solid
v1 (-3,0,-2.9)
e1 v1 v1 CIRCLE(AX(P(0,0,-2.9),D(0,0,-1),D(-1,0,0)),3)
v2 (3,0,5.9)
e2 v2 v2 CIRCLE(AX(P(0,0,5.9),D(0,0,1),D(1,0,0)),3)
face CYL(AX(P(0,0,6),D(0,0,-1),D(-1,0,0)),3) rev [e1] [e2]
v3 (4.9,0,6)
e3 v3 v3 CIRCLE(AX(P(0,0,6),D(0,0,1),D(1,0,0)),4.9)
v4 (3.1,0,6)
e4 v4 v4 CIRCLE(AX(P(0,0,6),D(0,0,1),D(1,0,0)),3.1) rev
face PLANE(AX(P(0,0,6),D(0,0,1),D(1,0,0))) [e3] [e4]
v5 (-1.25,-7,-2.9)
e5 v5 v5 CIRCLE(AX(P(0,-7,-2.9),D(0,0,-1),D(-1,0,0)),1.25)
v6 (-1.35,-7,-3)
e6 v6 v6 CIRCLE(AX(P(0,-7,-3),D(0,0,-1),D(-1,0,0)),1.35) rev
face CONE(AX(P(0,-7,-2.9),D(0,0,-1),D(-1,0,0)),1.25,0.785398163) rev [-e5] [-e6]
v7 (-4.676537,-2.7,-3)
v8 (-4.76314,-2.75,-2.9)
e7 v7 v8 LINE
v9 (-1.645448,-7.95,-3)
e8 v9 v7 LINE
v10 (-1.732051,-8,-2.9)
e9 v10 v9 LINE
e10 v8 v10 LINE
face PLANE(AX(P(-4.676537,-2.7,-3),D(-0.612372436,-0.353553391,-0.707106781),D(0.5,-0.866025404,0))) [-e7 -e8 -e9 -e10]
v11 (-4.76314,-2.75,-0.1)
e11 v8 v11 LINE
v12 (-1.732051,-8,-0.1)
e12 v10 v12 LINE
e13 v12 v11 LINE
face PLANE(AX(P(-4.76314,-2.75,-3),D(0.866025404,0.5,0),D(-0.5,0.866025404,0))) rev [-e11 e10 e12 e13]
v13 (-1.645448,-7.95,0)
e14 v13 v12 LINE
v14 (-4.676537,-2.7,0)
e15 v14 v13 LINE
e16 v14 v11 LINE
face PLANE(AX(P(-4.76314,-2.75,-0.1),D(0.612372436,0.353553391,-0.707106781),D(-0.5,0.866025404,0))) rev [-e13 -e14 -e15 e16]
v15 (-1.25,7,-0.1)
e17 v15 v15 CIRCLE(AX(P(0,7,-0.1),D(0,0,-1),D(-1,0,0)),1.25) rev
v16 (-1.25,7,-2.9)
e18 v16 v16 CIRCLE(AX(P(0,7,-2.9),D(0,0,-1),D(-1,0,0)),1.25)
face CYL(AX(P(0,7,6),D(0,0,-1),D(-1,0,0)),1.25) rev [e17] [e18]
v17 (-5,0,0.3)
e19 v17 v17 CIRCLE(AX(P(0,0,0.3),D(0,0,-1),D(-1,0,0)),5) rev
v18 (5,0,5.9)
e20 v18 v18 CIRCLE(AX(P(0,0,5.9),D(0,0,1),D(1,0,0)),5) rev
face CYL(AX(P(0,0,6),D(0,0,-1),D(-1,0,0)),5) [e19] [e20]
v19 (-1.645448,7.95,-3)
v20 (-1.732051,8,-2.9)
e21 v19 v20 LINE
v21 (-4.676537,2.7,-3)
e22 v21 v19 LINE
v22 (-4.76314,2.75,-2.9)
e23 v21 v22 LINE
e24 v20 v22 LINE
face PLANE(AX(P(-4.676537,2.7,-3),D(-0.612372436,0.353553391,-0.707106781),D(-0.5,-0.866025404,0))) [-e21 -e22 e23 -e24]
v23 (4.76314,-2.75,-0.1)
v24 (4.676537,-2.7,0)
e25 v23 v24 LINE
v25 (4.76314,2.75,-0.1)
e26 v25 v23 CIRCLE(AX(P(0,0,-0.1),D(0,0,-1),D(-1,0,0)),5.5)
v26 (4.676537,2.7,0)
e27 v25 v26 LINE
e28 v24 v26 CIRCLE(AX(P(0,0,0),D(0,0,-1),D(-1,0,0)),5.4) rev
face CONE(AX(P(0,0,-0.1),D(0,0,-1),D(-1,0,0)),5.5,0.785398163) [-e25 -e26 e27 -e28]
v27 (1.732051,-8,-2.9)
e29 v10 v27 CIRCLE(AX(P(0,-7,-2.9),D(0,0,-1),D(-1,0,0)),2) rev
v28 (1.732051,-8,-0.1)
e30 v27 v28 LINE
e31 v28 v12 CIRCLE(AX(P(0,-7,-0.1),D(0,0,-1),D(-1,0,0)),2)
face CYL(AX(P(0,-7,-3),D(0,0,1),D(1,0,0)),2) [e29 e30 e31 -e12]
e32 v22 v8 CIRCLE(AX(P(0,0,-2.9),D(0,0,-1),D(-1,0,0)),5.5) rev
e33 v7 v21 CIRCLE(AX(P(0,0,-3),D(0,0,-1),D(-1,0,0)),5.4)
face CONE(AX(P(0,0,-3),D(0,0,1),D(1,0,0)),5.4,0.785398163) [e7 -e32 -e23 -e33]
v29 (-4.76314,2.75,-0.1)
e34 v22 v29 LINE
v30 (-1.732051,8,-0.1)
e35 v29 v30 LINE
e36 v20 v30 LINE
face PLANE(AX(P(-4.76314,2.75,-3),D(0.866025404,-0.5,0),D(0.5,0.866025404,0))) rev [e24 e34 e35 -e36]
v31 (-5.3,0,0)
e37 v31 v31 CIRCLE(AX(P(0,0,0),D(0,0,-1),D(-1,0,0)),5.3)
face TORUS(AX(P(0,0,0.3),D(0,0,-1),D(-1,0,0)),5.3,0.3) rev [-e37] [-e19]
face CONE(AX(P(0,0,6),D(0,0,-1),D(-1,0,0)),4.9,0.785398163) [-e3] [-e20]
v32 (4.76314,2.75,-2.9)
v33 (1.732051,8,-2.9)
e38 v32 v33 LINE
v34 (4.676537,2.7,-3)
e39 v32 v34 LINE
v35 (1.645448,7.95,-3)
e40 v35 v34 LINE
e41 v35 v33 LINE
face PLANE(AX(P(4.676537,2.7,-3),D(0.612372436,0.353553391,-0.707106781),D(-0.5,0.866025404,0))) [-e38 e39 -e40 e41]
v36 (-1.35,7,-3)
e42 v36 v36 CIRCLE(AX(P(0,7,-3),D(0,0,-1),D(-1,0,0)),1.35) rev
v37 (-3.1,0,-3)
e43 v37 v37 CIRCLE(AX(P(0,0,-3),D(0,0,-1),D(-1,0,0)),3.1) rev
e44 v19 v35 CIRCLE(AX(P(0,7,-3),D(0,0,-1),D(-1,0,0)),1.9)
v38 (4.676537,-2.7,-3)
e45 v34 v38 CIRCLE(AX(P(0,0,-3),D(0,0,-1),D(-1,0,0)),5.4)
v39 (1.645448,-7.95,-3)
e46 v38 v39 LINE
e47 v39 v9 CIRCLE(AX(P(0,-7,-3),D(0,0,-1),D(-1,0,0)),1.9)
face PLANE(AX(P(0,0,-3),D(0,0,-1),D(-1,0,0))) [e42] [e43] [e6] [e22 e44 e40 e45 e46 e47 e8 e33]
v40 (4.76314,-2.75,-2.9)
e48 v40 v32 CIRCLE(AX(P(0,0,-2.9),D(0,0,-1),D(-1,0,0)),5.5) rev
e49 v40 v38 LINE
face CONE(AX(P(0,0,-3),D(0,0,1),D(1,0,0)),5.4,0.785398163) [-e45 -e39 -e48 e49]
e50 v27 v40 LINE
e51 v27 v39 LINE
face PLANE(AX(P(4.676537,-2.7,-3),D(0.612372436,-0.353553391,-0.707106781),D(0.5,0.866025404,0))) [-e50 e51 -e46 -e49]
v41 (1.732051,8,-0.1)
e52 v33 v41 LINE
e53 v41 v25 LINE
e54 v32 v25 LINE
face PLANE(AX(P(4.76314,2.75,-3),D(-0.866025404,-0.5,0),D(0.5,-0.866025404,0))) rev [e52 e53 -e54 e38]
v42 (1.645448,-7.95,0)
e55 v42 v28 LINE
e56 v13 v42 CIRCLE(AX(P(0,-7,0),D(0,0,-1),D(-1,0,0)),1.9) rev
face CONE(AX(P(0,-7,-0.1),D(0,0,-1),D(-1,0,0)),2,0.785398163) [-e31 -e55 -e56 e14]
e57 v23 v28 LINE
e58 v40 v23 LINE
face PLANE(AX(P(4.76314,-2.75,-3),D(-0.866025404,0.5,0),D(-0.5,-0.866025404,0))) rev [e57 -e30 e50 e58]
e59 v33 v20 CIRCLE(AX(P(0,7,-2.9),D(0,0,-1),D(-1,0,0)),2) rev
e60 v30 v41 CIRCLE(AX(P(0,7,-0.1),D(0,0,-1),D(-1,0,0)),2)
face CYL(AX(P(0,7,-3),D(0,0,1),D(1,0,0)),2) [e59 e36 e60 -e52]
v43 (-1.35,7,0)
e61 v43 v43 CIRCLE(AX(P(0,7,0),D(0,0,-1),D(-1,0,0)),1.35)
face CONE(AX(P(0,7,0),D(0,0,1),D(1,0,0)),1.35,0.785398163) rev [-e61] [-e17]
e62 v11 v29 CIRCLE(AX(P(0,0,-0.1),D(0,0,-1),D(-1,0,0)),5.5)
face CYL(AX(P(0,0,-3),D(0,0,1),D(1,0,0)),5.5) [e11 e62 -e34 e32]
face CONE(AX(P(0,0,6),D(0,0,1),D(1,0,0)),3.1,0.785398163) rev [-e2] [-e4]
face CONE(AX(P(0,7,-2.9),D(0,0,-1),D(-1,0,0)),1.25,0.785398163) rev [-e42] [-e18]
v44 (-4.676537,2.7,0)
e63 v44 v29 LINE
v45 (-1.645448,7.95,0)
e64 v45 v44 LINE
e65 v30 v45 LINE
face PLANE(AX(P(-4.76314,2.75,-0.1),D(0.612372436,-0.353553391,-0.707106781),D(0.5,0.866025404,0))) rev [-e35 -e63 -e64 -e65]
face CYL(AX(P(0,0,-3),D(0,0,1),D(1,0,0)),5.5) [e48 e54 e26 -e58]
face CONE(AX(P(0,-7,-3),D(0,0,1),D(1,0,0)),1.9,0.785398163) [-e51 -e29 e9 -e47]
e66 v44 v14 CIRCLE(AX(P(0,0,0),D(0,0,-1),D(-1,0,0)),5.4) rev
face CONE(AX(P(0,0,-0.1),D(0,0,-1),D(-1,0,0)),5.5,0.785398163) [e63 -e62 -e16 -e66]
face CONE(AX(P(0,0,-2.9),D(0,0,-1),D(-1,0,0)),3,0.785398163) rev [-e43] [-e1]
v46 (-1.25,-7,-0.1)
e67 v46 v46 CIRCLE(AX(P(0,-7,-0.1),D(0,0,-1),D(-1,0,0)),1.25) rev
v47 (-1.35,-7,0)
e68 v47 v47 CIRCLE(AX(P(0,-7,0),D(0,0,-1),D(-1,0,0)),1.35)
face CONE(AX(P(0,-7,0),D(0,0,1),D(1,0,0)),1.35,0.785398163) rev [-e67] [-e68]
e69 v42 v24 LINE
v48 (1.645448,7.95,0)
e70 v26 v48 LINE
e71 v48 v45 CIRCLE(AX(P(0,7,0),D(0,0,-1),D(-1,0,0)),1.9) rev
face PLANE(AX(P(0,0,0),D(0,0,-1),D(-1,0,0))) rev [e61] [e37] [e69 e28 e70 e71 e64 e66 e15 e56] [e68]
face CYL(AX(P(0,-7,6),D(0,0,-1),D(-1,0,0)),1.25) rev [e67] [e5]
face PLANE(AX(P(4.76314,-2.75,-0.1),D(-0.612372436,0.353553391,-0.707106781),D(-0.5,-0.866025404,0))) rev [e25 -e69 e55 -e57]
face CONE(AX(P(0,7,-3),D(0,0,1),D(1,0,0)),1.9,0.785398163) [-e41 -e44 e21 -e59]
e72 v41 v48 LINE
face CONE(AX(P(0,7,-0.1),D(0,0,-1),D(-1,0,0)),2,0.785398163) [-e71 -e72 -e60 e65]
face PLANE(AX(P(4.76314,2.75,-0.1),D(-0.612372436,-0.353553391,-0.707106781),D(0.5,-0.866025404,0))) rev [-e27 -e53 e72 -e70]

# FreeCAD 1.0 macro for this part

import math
import FreeCAD as App
import Part
import Sketcher
Q = App.Units.Quantity


def edges_at(feature, points):
    """Names of the edges that pass closest to the given points."""
    edges = feature.Shape.Edges
    near = lambda p: min(range(len(edges)), key=lambda i: edges[i].distToShape(Part.Vertex(*p))[0])
    return sorted({f"Edge{near(p) + 1}" for p in points})

doc = App.newDocument("Part")
body = doc.addObject("PartDesign::Body", "Body")

# Sketch on XY plane
sketch1 = body.newObject("Sketcher::SketchObject", "Sketch")
sketch1.AttachmentSupport = (doc.getObject("XY_Plane"), [""])
sketch1.MapMode = "FlatFace"
sketch1.addGeometry(Part.Circle(App.Vector(0, 0, 0), App.Vector(0, 0, 1), 5), False)
sketch1.addConstraint(Sketcher.Constraint("Coincident", 0, 3, -1, 1))
sketch1.addConstraint(Sketcher.Constraint("Diameter", 0, Q("10 mm")))
pad1 = body.newObject("PartDesign::Pad", "Pad")
pad1.Profile = sketch1
pad1.Length = 6

# Sketch on XY plane
sketch2 = body.newObject("Sketcher::SketchObject", "Sketch001")
sketch2.AttachmentSupport = (doc.getObject("XY_Plane"), [""])
sketch2.MapMode = "FlatFace"
sketch2.addGeometry(Part.LineSegment(App.Vector(1.7, 8, 0), App.Vector(4.8, 2.8, 0)), False)
sketch2.addGeometry(Part.ArcOfCircle(Part.Circle(App.Vector(0, 0, 0), App.Vector(0, 0, 1), 5.5), math.radians(-30), math.radians(30)), False)
sketch2.addGeometry(Part.LineSegment(App.Vector(4.8, -2.8, 0), App.Vector(1.7, -8, 0)), False)
sketch2.addGeometry(Part.ArcOfCircle(Part.Circle(App.Vector(0, -7, 0), App.Vector(0, 0, 1), 2), math.radians(-150), math.radians(-30)), False)
sketch2.addGeometry(Part.LineSegment(App.Vector(-1.7, -8, 0), App.Vector(-4.8, -2.8, 0)), False)
sketch2.addGeometry(Part.ArcOfCircle(Part.Circle(App.Vector(0, 0, 0), App.Vector(0, 0, 1), 5.5), math.radians(150), math.radians(210)), False)
sketch2.addGeometry(Part.LineSegment(App.Vector(-4.8, 2.8, 0), App.Vector(-1.7, 8, 0)), False)
sketch2.addGeometry(Part.ArcOfCircle(Part.Circle(App.Vector(0, 7, 0), App.Vector(0, 0, 1), 2), math.radians(30), math.radians(150)), False)
sketch2.addConstraint(Sketcher.Constraint("Tangent", 0, 2, 1, 2))
sketch2.addConstraint(Sketcher.Constraint("Tangent", 1, 1, 2, 1))
sketch2.addConstraint(Sketcher.Constraint("Tangent", 2, 2, 3, 2))
sketch2.addConstraint(Sketcher.Constraint("Tangent", 3, 1, 4, 1))
sketch2.addConstraint(Sketcher.Constraint("Tangent", 4, 2, 5, 2))
sketch2.addConstraint(Sketcher.Constraint("Tangent", 5, 1, 6, 1))
sketch2.addConstraint(Sketcher.Constraint("Tangent", 6, 2, 7, 2))
sketch2.addConstraint(Sketcher.Constraint("Tangent", 7, 1, 0, 1))
sketch2.addConstraint(Sketcher.Constraint("Coincident", 1, 3, -1, 1))
sketch2.addConstraint(Sketcher.Constraint("Coincident", 5, 3, -1, 1))
sketch2.addConstraint(Sketcher.Constraint("Equal", 1, 5))
sketch2.addConstraint(Sketcher.Constraint("Equal", 3, 7))
sketch2.addConstraint(Sketcher.Constraint("Symmetric", 3, 3, 7, 3, -1, 1))
sketch2.addConstraint(Sketcher.Constraint("PointOnObject", 3, 3, -2))
sketch2.addConstraint(Sketcher.Constraint("Radius", 3, Q("2 mm")))
sketch2.addConstraint(Sketcher.Constraint("Radius", 1, Q("5.5 mm")))
sketch2.addConstraint(Sketcher.Constraint("Angle", 0, Q("-60 deg")))
pad2 = body.newObject("PartDesign::Pad", "Pad001")
pad2.Profile = sketch2
pad2.Length = 3
pad2.Reversed = True

# Sketch on XY plane
sketch3 = body.newObject("Sketcher::SketchObject", "Sketch002")
sketch3.AttachmentSupport = (doc.getObject("XY_Plane"), [""])
sketch3.MapMode = "FlatFace"
sketch3.AttachmentOffset = App.Placement(App.Vector(0, 0, -3), App.Rotation())
sketch3.addGeometry(Part.Circle(App.Vector(0, 0, 0), App.Vector(0, 0, 1), 3), False)
sketch3.addGeometry(Part.Circle(App.Vector(0, 7, 0), App.Vector(0, 0, 1), 1.2), False)
sketch3.addGeometry(Part.Circle(App.Vector(0, -7, 0), App.Vector(0, 0, 1), 1.2), False)
sketch3.addConstraint(Sketcher.Constraint("Coincident", 0, 3, -1, 1))
sketch3.addConstraint(Sketcher.Constraint("Equal", 1, 2))
sketch3.addConstraint(Sketcher.Constraint("Symmetric", 1, 3, 2, 3, -1, 1))
sketch3.addConstraint(Sketcher.Constraint("PointOnObject", 1, 3, -2))
sketch3.addConstraint(Sketcher.Constraint("Diameter", 0, Q("6 mm")))
sketch3.addConstraint(Sketcher.Constraint("Diameter", 1, Q("2.5 mm")))
sketch3.addConstraint(Sketcher.Constraint("DistanceY", -1, 1, 1, 3, Q("7 mm")))
pocket1 = body.newObject("PartDesign::Pocket", "Pocket")
pocket1.Profile = sketch3
pocket1.Type = "ThroughAll"
pocket1.Reversed = True
doc.recompute()

fillet = body.newObject("PartDesign::Fillet", "Fillet")
fillet.Base = (pocket1, edges_at(pocket1, [(-5, 0, 0)]))
fillet.Radius = 0.3
doc.recompute()

chamfer = body.newObject("PartDesign::Chamfer", "Chamfer")
chamfer.Base = (fillet, edges_at(fillet, [
    (-3.248, -5.375, -3),
    (-5.5, 0, -3),
    (-3.248, 5.375, -3),
    (0, 9, -3),
    (3.248, 5.375, -3),
    (1.25, -7, 0),
    (1.25, -7, -3),
    (1.25, 7, 0),
    (1.25, 7, -3),
    (3, 0, 6),
    (3, 0, -3),
    (-5, 0, 6),
    (5.5, 0, 0),
    (3.248, -5.375, 0),
    (0, -9, 0),
    (-3.248, -5.375, 0),
    (-5.5, 0, 0),
    (-3.248, 5.375, 0),
    (0, 9, 0),
    (3.248, 5.375, 0),
    (5.5, 0, -3),
    (3.248, -5.375, -3),
    (0, -9, -3),
]))
chamfer.Size = 0.1

doc.recompute()
